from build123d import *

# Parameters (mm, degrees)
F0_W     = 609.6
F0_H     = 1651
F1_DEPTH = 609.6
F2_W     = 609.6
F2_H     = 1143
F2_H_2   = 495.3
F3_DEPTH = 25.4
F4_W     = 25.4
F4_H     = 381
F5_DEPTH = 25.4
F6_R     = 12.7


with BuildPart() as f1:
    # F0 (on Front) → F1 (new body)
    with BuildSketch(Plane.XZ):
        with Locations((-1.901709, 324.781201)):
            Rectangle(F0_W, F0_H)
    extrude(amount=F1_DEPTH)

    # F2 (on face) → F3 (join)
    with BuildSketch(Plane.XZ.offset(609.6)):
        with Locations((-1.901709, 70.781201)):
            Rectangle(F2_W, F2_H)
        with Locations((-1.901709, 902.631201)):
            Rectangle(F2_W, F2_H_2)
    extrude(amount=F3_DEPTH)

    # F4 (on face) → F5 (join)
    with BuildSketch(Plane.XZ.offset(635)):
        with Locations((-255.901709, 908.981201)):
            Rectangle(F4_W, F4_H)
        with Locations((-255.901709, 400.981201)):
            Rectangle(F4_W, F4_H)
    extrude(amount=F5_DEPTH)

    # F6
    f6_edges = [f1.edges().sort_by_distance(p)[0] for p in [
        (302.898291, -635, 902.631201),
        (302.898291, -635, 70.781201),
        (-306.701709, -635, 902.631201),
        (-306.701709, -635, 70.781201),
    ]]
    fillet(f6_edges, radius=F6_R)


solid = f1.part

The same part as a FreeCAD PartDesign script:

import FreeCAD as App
import Part
import Sketcher
from FreeCAD import Vector
Q = App.Units.Quantity


def edges_at(feature, points):
    """Names of the edges that pass closest to the given points."""
    edges = feature.Shape.Edges
    near = lambda p: min(range(len(edges)), key=lambda i: edges[i].distToShape(Part.Vertex(*p))[0])
    return sorted({f"Edge{near(p) + 1}" for p in points})


def add_polygon(sketch, points):
    """Adds a closed chain of lines whose ends are joined by coincident constraints."""
    first, n = sketch.GeometryCount, len(points)
    for a, b in zip(points, points[1:] + points[:1]):
        sketch.addGeometry(Part.LineSegment(App.Vector(*a, 0), App.Vector(*b, 0)), False)
    for i in range(n):
        sketch.addConstraint(Sketcher.Constraint("Coincident", first + i, 2, first + (i + 1) % n, 1))

doc = App.newDocument("Part")
body = doc.addObject("PartDesign::Body", "Body")

# Sketch on XZ plane
sketch1 = body.newObject("Sketcher::SketchObject", "Sketch")
sketch1.AttachmentSupport = (doc.getObject("XZ_Plane"), [""])
sketch1.MapMode = "FlatFace"
add_polygon(sketch1, [(-307, 1150), (-307, -501), (303, -501), (303, 1150)])  # lines 0-3
sketch1.addConstraint([
    Sketcher.Constraint("Vertical", 0),
    Sketcher.Constraint("Horizontal", 1),
    Sketcher.Constraint("Vertical", 2),
    Sketcher.Constraint("Horizontal", 3),
    Sketcher.Constraint("DistanceX", 1, 1, 1, 2, Q("24 in")),
    Sketcher.Constraint("DistanceY", 0, 2, 0, 1, Q("65 in")),
    Sketcher.Constraint("DistanceY", 0, 2, -1, 1, Q("500.718799 mm")),
    Sketcher.Constraint("DistanceX", 0, 2, -1, 1, Q("306.701709 mm")),
])
pad1 = body.newObject("PartDesign::Pad", "Pad")
pad1.Profile = sketch1
pad1.Length = Q("24 in")

# Sketch on XZ plane
sketch2 = body.newObject("Sketcher::SketchObject", "Sketch001")
sketch2.AttachmentSupport = (doc.getObject("XZ_Plane"), [""])
sketch2.MapMode = "FlatFace"
sketch2.AttachmentOffset = App.Placement(Vector(0, 0, 24 * 25.4), App.Rotation())
add_polygon(sketch2, [(-307, 642), (-307, -501), (303, -501), (303, 642)])  # lines 0-3
add_polygon(sketch2, [(-307, 1150), (-307, 655), (303, 655), (303, 1150)])  # lines 4-7
sketch2.addConstraint([
    Sketcher.Constraint("Vertical", 0),
    Sketcher.Constraint("Horizontal", 1),
    Sketcher.Constraint("Vertical", 2),
    Sketcher.Constraint("Horizontal", 3),
    Sketcher.Constraint("Vertical", 4),
    Sketcher.Constraint("Horizontal", 5),
    Sketcher.Constraint("Vertical", 6),
    Sketcher.Constraint("Horizontal", 7),
    Sketcher.Constraint("Vertical", 3, 2, 4, 2),
    Sketcher.Constraint("Vertical", 2, 2, 5, 2),
    Sketcher.Constraint("DistanceX", 1, 1, 1, 2, Q("24 in")),
    Sketcher.Constraint("DistanceY", 0, 2, 0, 1, Q("45 in")),
    Sketcher.Constraint("DistanceY", 4, 2, 4, 1, Q("19.5 in")),
    Sketcher.Constraint("DistanceY", 2, 2, 6, 2, Q("20 in")),
    Sketcher.Constraint("DistanceY", 0, 2, -1, 1, Q("500.718799 mm")),
    Sketcher.Constraint("DistanceX", 0, 2, -1, 1, Q("306.701709 mm")),
])
pad2 = body.newObject("PartDesign::Pad", "Pad001")
pad2.Profile = sketch2
pad2.Length = Q("1 in")

# Sketch on XZ plane
sketch3 = body.newObject("Sketcher::SketchObject", "Sketch002")
sketch3.AttachmentSupport = (doc.getObject("XZ_Plane"), [""])
sketch3.MapMode = "FlatFace"
sketch3.AttachmentOffset = App.Placement(Vector(0, 0, 25 * 25.4), App.Rotation())
add_polygon(sketch3, [(-269, 1099), (-269, 718), (-243, 718), (-243, 1099)])  # lines 0-3
add_polygon(sketch3, [(-269, 591), (-269, 210), (-243, 210), (-243, 591)])  # lines 4-7
sketch3.addConstraint([
    Sketcher.Constraint("Vertical", 0),
    Sketcher.Constraint("Horizontal", 1),
    Sketcher.Constraint("Vertical", 2),
    Sketcher.Constraint("Horizontal", 3),
    Sketcher.Constraint("Vertical", 4),
    Sketcher.Constraint("Horizontal", 5),
    Sketcher.Constraint("Vertical", 6),
    Sketcher.Constraint("Horizontal", 7),
    Sketcher.Constraint("Vertical", 3, 2, 4, 2),
    Sketcher.Constraint("Vertical", 2, 2, 5, 2),
    Sketcher.Constraint("Equal", 2, 4),
    Sketcher.Constraint("DistanceX", 1, 1, 1, 2, Q("1 in")),
    Sketcher.Constraint("DistanceY", 0, 2, 0, 1, Q("15 in")),
    Sketcher.Constraint("DistanceY", 4, 2, 0, 2, Q("20 in")),
    Sketcher.Constraint("DistanceY", -1, 1, 0, 2, Q("718.481201 mm")),
    Sketcher.Constraint("DistanceX", 0, 2, -1, 1, Q("268.601709 mm")),
])
pad3 = body.newObject("PartDesign::Pad", "Pad002")
pad3.Profile = sketch3
pad3.Length = Q("1 in")
doc.recompute()

fillet = body.newObject("PartDesign::Fillet", "Fillet")
fillet.Base = (pad3, edges_at(pad3, [
    (302.898, -635, 902.631),
    (302.898, -635, 70.781),
    (-306.702, -635, 902.631),
    (-306.702, -635, 70.781),
]))
fillet.Radius = Q("0.5 in")

doc.recompute()
